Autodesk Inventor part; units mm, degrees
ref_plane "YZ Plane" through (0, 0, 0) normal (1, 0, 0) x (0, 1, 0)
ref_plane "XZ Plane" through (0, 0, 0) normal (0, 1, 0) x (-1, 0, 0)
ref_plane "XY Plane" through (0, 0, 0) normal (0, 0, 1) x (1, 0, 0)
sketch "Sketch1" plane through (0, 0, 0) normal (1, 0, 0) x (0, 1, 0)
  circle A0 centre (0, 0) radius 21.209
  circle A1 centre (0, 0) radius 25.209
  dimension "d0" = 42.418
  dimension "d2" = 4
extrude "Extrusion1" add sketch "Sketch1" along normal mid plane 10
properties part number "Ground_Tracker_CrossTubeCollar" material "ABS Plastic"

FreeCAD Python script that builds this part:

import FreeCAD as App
import Part
import Sketcher

V = App.Vector

doc = App.newDocument("Part")
body = doc.addObject("PartDesign::Body", "Body")

sketch1 = doc.addObject("Sketcher::SketchObject", "Sketch")
body.addObject(sketch1)
sketch1.AttachmentSupport = (doc.YZ_Plane, [""])
sketch1.MapMode = "FlatFace"
sketch1.addGeometry([
    Part.Circle(V(0, 0, 0), V(0, 0, 1), 25),
    Part.Circle(V(0, 0, 0), V(0, 0, 1), 21),
], False)
sketch1.addConstraint([
    Sketcher.Constraint("Coincident", 0, 3, -1, 1),
    Sketcher.Constraint("Coincident", 1, 3, -1, 1),
    Sketcher.Constraint("Diameter", 1, 42.418),
    Sketcher.Constraint("Diameter", 0, 50.418),
])
pad1 = doc.addObject("PartDesign::Pad", "Pad")
body.addObject(pad1)
pad1.Profile = sketch1
pad1.Length = 10
pad1.Midplane = True

doc.recompute()
